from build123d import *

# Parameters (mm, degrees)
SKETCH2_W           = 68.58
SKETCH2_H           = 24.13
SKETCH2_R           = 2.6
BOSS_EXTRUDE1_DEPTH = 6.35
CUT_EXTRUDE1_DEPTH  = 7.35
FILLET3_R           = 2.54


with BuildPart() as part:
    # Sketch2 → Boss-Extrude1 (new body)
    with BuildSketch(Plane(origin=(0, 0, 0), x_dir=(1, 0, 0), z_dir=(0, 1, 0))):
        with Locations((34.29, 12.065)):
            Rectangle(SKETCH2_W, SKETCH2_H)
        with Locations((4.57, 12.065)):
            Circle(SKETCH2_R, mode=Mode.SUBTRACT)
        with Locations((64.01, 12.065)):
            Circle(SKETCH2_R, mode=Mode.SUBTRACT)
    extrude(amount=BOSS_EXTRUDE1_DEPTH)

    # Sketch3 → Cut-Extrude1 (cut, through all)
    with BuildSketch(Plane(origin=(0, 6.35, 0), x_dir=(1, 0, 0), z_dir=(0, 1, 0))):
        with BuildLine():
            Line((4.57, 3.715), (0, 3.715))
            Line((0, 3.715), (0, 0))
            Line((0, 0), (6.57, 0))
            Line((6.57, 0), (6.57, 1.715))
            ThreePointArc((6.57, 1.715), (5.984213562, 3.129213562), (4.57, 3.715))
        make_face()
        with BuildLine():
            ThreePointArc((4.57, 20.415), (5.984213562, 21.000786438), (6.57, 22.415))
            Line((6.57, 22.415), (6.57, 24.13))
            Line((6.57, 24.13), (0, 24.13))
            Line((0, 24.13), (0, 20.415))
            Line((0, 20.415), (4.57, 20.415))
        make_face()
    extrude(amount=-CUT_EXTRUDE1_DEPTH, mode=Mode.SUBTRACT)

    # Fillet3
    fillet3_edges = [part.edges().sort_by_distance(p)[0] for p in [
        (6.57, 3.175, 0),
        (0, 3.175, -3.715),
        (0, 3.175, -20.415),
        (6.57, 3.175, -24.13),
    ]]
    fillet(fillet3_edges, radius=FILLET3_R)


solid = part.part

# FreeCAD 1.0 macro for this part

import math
import FreeCAD as App
import Part
import Sketcher

V = App.Vector
Q = App.Units.Quantity


def edges_at(feature, points):
    """Names of the edges that pass closest to the given points."""
    edges = feature.Shape.Edges
    near = lambda p: min(range(len(edges)), key=lambda i: edges[i].distToShape(Part.Vertex(*p))[0])
    return sorted({f"Edge{near(p) + 1}" for p in points})


def add_polygon(sketch, points):
    """Adds a closed chain of lines whose ends are joined by coincident constraints."""
    first, n = sketch.GeometryCount, len(points)
    for a, b in zip(points, points[1:] + points[:1]):
        sketch.addGeometry(Part.LineSegment(App.Vector(*a, 0), App.Vector(*b, 0)), False)
    for i in range(n):
        sketch.addConstraint(Sketcher.Constraint("Coincident", first + i, 2, first + (i + 1) % n, 1))

doc = App.newDocument("Part")
body = doc.addObject("PartDesign::Body", "Body")

# Sketch on XZ plane
sketch1 = body.newObject("Sketcher::SketchObject", "Sketch")
sketch1.AttachmentSupport = (doc.getObject("XZ_Plane"), [""])
sketch1.MapMode = "FlatFace"
add_polygon(sketch1, [(0, -24.13), (0, 0), (68.58, 0), (68.58, -24.13)])  # lines 0-3
sketch1.addGeometry(Part.Circle(V(4.57, -12.065, 0), V(0, 0, 1), 2.6), False)  # 4
sketch1.addGeometry(Part.Circle(V(64.01, -12.065, 0), V(0, 0, 1), 2.6), False)  # 5
sketch1.addConstraint(Sketcher.Constraint("Vertical", 0))
sketch1.addConstraint(Sketcher.Constraint("Horizontal", 1))
sketch1.addConstraint(Sketcher.Constraint("Vertical", 2))
sketch1.addConstraint(Sketcher.Constraint("Horizontal", 3))
sketch1.addConstraint(Sketcher.Constraint("Coincident", 0, 2, -1, 1))
sketch1.addConstraint(Sketcher.Constraint("Equal", 4, 5))
sketch1.addConstraint(Sketcher.Constraint("Horizontal", 4, 3, 5, 3))
sketch1.addConstraint(Sketcher.Constraint("DistanceX", 1, 1, 1, 2, Q("2.7 in")))
sketch1.addConstraint(Sketcher.Constraint("DistanceY", 0, 1, 0, 2, Q("0.95 in")))
sketch1.addConstraint(Sketcher.Constraint("Diameter", 4, Q("5.2 mm")))
sketch1.addConstraint(Sketcher.Constraint("DistanceY", 4, 3, -1, 1, Q("0.475 in")))
sketch1.addConstraint(Sketcher.Constraint("DistanceX", -1, 1, 4, 3, Q("4.57 mm")))
sketch1.addConstraint(Sketcher.Constraint("DistanceX", -1, 1, 5, 3, Q("64.01 mm")))
pad1 = body.newObject("PartDesign::Pad", "Pad")
pad1.Profile = sketch1
pad1.Length = Q("0.25 in")
pad1.Reversed = True

# Sketch on XZ plane
sketch2 = body.newObject("Sketcher::SketchObject", "Sketch001")
sketch2.AttachmentSupport = (doc.getObject("XZ_Plane"), [""])
sketch2.MapMode = "FlatFace"
sketch2.AttachmentOffset = App.Placement(V(0, 0, -0.25 * 25.4), App.Rotation())
sketch2.addGeometry(Part.LineSegment(V(4.57, -3.715, 0), V(0, -3.715, 0)), False)
sketch2.addGeometry(Part.LineSegment(V(0, -3.715, 0), V(0, 0, 0)), False)
sketch2.addGeometry(Part.LineSegment(V(0, 0, 0), V(6.57, 0, 0)), False)
sketch2.addGeometry(Part.LineSegment(V(6.57, 0, 0), V(6.57, -1.715, 0)), False)
sketch2.addGeometry(Part.ArcOfCircle(Part.Circle(V(4.57, -1.715, 0), V(0, 0, 1), 2), math.radians(-90), math.radians(0)), False)
sketch2.addGeometry(Part.ArcOfCircle(Part.Circle(V(4.57, -22.415, 0), V(0, 0, 1), 2), math.radians(0), math.radians(90)), False)
sketch2.addGeometry(Part.LineSegment(V(6.57, -22.415, 0), V(6.57, -24.13, 0)), False)
sketch2.addGeometry(Part.LineSegment(V(6.57, -24.13, 0), V(0, -24.13, 0)), False)
sketch2.addGeometry(Part.LineSegment(V(0, -24.13, 0), V(0, -20.415, 0)), False)
sketch2.addGeometry(Part.LineSegment(V(0, -20.415, 0), V(4.57, -20.415, 0)), False)
sketch2.addConstraint(Sketcher.Constraint("Coincident", 0, 2, 1, 1))
sketch2.addConstraint(Sketcher.Constraint("Coincident", 1, 2, 2, 1))
sketch2.addConstraint(Sketcher.Constraint("Coincident", 2, 2, 3, 1))
sketch2.addConstraint(Sketcher.Constraint("Tangent", 3, 2, 4, 2))
sketch2.addConstraint(Sketcher.Constraint("Tangent", 4, 1, 0, 1))
sketch2.addConstraint(Sketcher.Constraint("Tangent", 5, 1, 6, 1))
sketch2.addConstraint(Sketcher.Constraint("Coincident", 6, 2, 7, 1))
sketch2.addConstraint(Sketcher.Constraint("Coincident", 7, 2, 8, 1))
sketch2.addConstraint(Sketcher.Constraint("Coincident", 8, 2, 9, 1))
sketch2.addConstraint(Sketcher.Constraint("Tangent", 9, 2, 5, 2))
sketch2.addConstraint(Sketcher.Constraint("Horizontal", 0))
sketch2.addConstraint(Sketcher.Constraint("Vertical", 1))
sketch2.addConstraint(Sketcher.Constraint("Horizontal", 2))
sketch2.addConstraint(Sketcher.Constraint("Vertical", 3))
sketch2.addConstraint(Sketcher.Constraint("Vertical", 6))
sketch2.addConstraint(Sketcher.Constraint("Horizontal", 7))
sketch2.addConstraint(Sketcher.Constraint("Vertical", 8))
sketch2.addConstraint(Sketcher.Constraint("Horizontal", 9))
sketch2.addConstraint(Sketcher.Constraint("Coincident", 1, 2, -1, 1))
sketch2.addConstraint(Sketcher.Constraint("Equal", 4, 5))
sketch2.addConstraint(Sketcher.Constraint("PointOnObject", 7, 2, -2))
sketch2.addConstraint(Sketcher.Constraint("Vertical", 4, 3, 5, 3))
sketch2.addConstraint(Sketcher.Constraint("Equal", 3, 6))
sketch2.addConstraint(Sketcher.Constraint("DistanceY", 6, 2, -1, 1, Q("0.95 in")))
sketch2.addConstraint(Sketcher.Constraint("Radius", 4, Q("2 mm")))
sketch2.addConstraint(Sketcher.Constraint("DistanceX", 0, 2, 0, 1, Q("4.57 mm")))
sketch2.addConstraint(Sketcher.Constraint("DistanceY", 1, 1, 1, 2, Q("3.715 mm")))
pocket1 = body.newObject("PartDesign::Pocket", "Pocket")
pocket1.Profile = sketch2
pocket1.Type = "ThroughAll"
pocket1.Reversed = True
doc.recompute()

fillet = body.newObject("PartDesign::Fillet", "Fillet")
fillet.Base = (pocket1, edges_at(pocket1, [
    (6.57, 3.175, 0),
    (0, 3.175, -3.715),
    (0, 3.175, -20.415),
    (6.57, 3.175, -24.13),
]))
fillet.Radius = Q("0.1 in")

doc.recompute()
